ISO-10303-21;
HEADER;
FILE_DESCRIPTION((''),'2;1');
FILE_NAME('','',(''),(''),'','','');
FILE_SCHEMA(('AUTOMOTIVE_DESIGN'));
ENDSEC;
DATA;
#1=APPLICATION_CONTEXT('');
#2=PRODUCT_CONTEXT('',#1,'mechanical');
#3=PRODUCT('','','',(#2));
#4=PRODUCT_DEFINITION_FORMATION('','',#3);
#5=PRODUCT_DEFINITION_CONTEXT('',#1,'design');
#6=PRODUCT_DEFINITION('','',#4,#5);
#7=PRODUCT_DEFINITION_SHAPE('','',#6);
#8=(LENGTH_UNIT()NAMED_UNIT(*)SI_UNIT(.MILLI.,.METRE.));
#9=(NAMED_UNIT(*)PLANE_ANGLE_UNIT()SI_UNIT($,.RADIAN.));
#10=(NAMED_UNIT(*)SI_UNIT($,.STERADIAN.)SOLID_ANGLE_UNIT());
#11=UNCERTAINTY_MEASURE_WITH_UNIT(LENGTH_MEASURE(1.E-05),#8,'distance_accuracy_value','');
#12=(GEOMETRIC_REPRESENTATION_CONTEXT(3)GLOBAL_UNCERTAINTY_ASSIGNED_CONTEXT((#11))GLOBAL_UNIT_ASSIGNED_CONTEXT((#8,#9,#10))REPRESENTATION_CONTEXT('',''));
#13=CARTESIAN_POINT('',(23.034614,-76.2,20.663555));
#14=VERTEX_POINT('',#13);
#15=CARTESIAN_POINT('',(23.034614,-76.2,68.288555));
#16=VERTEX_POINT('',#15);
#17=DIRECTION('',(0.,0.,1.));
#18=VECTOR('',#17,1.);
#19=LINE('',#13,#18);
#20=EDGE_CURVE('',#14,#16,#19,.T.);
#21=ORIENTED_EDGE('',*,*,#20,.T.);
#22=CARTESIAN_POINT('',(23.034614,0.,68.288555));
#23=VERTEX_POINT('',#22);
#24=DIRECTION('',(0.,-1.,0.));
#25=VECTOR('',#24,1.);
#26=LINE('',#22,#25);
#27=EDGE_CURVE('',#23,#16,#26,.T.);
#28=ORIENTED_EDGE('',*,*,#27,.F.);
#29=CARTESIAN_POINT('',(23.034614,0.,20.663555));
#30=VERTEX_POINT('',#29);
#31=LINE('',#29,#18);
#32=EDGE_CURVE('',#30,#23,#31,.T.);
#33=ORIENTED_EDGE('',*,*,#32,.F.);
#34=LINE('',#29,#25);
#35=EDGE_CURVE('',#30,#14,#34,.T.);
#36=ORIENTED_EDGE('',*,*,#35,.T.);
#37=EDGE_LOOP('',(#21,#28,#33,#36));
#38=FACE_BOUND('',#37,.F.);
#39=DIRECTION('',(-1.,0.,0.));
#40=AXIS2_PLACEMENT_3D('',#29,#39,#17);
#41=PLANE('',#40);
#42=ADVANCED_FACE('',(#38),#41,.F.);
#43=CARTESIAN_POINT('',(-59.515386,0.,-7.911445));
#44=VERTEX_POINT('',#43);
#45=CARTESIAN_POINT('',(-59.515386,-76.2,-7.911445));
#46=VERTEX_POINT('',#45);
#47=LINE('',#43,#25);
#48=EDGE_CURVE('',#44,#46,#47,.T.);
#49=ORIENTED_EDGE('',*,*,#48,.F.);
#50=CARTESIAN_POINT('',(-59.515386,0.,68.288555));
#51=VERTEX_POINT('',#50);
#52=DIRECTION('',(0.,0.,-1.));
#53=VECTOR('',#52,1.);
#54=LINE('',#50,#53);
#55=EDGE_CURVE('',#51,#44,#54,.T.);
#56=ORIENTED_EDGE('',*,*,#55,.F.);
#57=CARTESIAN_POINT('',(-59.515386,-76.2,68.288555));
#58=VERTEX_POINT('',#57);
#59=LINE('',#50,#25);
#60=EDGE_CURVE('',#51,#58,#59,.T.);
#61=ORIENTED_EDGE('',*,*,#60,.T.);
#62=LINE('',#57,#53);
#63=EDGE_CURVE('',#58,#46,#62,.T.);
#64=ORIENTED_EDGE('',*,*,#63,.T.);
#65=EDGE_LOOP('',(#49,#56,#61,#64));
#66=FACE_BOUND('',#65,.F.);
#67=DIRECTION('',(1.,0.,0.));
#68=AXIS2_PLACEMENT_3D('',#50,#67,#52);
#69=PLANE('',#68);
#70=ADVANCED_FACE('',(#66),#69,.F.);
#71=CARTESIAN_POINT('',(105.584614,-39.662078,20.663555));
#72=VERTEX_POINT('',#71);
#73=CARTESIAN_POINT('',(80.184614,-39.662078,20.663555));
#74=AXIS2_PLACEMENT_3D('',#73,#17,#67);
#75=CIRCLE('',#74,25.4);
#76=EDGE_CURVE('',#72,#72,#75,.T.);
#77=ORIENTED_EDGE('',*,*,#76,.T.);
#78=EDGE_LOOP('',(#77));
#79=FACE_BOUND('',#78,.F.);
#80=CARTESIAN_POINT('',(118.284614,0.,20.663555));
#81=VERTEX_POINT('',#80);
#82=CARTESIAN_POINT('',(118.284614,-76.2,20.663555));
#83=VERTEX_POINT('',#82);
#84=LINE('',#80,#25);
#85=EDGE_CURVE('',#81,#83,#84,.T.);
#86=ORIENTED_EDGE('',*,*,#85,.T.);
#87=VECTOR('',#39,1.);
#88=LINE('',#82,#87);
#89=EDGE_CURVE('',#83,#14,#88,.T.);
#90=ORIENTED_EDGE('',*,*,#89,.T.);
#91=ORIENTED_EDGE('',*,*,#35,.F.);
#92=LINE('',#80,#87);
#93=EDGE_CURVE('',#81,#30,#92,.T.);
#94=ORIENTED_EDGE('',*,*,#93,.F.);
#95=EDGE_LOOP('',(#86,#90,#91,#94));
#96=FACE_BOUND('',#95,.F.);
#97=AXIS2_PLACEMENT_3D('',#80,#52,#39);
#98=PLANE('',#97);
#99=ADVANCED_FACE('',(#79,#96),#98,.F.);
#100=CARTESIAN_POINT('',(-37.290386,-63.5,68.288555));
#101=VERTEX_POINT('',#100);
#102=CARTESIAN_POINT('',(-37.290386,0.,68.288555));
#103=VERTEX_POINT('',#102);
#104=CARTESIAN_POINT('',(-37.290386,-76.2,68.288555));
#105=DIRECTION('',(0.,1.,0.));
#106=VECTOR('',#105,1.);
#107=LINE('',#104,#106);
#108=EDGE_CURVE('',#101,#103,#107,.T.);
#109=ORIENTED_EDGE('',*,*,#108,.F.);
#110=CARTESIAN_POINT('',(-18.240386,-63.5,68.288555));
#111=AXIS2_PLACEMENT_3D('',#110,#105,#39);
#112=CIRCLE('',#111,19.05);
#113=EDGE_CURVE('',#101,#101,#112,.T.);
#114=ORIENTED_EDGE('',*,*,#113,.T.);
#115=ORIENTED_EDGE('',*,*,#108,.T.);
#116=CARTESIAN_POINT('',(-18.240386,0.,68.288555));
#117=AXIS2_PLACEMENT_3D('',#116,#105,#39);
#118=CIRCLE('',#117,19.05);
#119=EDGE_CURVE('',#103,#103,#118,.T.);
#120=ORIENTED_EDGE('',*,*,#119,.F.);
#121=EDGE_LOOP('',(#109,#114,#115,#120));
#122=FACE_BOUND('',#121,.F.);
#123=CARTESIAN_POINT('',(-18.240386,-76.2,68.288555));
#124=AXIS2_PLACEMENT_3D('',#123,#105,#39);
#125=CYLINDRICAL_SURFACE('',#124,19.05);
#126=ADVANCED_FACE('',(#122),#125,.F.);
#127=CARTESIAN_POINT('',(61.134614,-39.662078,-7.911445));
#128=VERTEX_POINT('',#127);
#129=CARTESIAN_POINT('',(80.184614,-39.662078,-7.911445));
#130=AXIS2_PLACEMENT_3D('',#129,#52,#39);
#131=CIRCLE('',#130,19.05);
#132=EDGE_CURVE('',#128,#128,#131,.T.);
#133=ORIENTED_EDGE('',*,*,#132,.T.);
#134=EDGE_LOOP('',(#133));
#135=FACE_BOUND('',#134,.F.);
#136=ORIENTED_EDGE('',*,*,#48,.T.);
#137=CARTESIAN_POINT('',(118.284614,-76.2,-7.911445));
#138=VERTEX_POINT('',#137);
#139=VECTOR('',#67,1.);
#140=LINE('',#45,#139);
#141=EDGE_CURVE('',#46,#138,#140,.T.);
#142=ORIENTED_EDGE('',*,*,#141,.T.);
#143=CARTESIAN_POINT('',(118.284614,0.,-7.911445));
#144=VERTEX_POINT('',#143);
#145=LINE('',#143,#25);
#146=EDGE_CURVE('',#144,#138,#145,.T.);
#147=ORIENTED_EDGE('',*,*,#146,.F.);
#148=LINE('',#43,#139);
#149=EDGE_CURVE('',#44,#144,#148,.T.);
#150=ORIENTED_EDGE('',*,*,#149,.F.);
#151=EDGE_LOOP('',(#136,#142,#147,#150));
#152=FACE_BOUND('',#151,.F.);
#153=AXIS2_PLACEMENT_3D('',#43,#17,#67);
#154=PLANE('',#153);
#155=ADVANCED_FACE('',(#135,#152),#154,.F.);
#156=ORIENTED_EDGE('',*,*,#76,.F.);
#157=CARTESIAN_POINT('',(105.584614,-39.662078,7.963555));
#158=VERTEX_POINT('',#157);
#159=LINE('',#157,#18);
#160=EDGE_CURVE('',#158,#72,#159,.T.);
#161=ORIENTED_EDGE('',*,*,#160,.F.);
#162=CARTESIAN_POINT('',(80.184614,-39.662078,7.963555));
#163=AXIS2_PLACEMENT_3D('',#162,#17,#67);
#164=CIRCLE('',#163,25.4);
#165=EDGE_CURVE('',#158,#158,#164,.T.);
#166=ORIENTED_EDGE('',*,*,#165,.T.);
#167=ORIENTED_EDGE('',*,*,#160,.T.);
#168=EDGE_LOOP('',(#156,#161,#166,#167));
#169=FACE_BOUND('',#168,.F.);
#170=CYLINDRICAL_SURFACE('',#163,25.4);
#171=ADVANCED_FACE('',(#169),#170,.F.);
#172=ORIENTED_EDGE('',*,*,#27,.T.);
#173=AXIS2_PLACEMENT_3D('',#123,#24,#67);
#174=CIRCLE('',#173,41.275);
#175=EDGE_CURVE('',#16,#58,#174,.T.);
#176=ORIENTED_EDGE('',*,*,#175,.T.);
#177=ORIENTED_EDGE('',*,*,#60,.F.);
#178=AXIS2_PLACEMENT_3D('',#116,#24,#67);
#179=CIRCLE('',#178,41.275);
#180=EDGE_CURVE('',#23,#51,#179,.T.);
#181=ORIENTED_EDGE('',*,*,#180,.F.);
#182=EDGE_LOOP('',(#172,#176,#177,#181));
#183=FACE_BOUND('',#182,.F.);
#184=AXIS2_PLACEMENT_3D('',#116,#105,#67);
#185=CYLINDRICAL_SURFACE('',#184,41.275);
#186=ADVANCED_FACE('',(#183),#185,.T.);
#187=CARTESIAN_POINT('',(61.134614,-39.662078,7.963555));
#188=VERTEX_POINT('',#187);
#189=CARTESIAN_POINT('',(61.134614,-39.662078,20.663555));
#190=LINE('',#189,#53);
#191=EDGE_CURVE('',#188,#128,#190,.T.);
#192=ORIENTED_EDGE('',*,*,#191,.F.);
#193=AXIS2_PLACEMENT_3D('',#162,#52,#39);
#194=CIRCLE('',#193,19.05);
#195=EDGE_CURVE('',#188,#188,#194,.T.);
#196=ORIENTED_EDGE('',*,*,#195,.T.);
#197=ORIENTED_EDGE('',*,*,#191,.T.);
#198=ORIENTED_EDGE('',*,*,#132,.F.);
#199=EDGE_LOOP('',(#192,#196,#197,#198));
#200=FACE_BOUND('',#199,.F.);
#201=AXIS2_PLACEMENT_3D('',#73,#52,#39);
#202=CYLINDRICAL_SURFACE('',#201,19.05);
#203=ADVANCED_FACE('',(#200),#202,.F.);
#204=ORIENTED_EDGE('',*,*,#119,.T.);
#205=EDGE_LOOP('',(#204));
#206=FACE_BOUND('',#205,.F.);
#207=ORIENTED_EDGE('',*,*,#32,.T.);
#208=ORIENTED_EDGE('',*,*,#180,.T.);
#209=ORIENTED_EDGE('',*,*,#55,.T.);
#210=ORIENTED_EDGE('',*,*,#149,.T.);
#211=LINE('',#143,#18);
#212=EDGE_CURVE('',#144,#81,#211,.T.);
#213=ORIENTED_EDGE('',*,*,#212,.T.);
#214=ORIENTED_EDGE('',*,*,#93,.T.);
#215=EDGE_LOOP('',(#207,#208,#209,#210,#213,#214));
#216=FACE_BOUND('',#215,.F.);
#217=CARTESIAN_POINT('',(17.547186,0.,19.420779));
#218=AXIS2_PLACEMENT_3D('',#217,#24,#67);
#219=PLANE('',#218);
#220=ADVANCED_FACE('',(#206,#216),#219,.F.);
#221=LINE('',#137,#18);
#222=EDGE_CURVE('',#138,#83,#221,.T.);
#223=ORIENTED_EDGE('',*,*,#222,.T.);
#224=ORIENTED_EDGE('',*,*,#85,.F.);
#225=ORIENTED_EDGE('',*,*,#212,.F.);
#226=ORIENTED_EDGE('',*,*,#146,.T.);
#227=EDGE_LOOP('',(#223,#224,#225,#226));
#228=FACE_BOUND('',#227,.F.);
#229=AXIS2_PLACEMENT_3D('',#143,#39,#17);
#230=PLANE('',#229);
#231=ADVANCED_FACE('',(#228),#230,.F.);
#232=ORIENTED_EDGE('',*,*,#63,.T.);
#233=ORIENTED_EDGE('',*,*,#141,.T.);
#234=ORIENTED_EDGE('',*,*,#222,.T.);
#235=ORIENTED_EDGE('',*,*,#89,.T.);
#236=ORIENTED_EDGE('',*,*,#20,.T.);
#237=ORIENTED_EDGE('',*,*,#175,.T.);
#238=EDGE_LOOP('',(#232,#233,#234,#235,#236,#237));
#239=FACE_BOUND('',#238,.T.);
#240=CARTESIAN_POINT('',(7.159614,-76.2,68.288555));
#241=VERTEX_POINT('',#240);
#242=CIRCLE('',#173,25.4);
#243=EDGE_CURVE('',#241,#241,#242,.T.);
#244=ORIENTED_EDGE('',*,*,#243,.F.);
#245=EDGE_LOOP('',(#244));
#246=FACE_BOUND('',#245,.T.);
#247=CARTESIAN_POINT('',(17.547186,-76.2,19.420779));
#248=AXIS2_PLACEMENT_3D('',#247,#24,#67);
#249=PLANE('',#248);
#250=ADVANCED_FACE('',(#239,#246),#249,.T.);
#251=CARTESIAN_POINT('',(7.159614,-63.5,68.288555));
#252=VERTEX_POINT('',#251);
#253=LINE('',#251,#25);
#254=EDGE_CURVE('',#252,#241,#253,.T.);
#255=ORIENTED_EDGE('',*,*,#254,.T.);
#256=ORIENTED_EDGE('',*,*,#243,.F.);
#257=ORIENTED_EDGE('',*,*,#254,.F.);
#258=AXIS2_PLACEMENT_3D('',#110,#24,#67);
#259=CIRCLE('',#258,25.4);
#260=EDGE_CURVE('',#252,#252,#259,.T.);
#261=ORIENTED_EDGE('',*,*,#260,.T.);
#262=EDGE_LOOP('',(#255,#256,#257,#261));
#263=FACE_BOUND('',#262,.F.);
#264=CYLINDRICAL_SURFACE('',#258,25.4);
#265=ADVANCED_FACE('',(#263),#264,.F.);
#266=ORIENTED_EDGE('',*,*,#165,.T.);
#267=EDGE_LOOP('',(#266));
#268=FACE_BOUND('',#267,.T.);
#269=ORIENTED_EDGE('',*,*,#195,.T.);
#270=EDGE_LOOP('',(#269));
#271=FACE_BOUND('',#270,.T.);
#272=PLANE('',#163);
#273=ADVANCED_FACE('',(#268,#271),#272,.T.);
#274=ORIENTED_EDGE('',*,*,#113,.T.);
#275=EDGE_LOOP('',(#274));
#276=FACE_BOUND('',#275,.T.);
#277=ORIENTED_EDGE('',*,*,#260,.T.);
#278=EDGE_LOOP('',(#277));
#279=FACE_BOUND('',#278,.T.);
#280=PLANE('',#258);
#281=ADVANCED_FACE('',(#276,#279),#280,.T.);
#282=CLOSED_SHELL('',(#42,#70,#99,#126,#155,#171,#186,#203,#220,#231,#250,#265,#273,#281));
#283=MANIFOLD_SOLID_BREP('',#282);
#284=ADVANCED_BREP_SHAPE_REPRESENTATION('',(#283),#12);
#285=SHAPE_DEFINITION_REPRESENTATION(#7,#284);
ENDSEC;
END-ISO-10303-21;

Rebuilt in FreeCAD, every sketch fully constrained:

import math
import FreeCAD as App
import Part
import Sketcher
Q = App.Units.Quantity

doc = App.newDocument("Part")
body = doc.addObject("PartDesign::Body", "Body")

# Sketch on XZ plane
sketch1 = body.newObject("Sketcher::SketchObject", "Sketch")
sketch1.AttachmentSupport = (doc.getObject("XZ_Plane"), [""])
sketch1.MapMode = "FlatFace"
sketch1.addGeometry(Part.LineSegment(App.Vector(118.284614, 20.663555, 0), App.Vector(23.034614, 20.663555, 0)), False)
sketch1.addGeometry(Part.LineSegment(App.Vector(23.034614, 20.663555, 0), App.Vector(23.034614, 68.288555, 0)), False)
sketch1.addGeometry(Part.ArcOfCircle(Part.Circle(App.Vector(-18.240386, 68.288555, 0), App.Vector(0, 0, 1), 41.275), math.radians(0), math.radians(180)), False)
sketch1.addGeometry(Part.LineSegment(App.Vector(-59.515386, 68.288555, 0), App.Vector(-59.515386, -7.911445, 0)), False)
sketch1.addGeometry(Part.LineSegment(App.Vector(-59.515386, -7.911445, 0), App.Vector(118.284614, -7.911445, 0)), False)
sketch1.addGeometry(Part.LineSegment(App.Vector(118.284614, -7.911445, 0), App.Vector(118.284614, 20.663555, 0)), False)
sketch1.addConstraint(Sketcher.Constraint("Coincident", 0, 2, 1, 1))
sketch1.addConstraint(Sketcher.Constraint("Tangent", 1, 2, 2, 1))
sketch1.addConstraint(Sketcher.Constraint("Tangent", 2, 2, 3, 1))
sketch1.addConstraint(Sketcher.Constraint("Coincident", 3, 2, 4, 1))
sketch1.addConstraint(Sketcher.Constraint("Coincident", 4, 2, 5, 1))
sketch1.addConstraint(Sketcher.Constraint("Coincident", 5, 2, 0, 1))
sketch1.addConstraint(Sketcher.Constraint("Horizontal", 0))
sketch1.addConstraint(Sketcher.Constraint("Vertical", 1))
sketch1.addConstraint(Sketcher.Constraint("Vertical", 3))
sketch1.addConstraint(Sketcher.Constraint("Horizontal", 4))
sketch1.addConstraint(Sketcher.Constraint("Vertical", 5))
sketch1.addConstraint(Sketcher.Constraint("DistanceX", 4, 1, 4, 2, Q("7 in")))
sketch1.addConstraint(Sketcher.Constraint("DistanceY", 3, 2, 3, 1, Q("3 in")))
sketch1.addConstraint(Sketcher.Constraint("Radius", 2, Q("1.625 in")))
sketch1.addConstraint(Sketcher.Constraint("DistanceY", 1, 1, 1, 2, Q("1.875 in")))
sketch1.addConstraint(Sketcher.Constraint("DistanceX", 2, 3, -1, 1, 18.240386))
sketch1.addConstraint(Sketcher.Constraint("DistanceY", -1, 1, 2, 3, 68.288555))
pad1 = body.newObject("PartDesign::Pad", "Pad")
pad1.Profile = sketch1
pad1.Length = Q("3 in")

# Sketch on XZ plane
sketch2 = body.newObject("Sketcher::SketchObject", "Sketch001")
sketch2.AttachmentSupport = (doc.getObject("XZ_Plane"), [""])
sketch2.MapMode = "FlatFace"
sketch2.AttachmentOffset = App.Placement(App.Vector(0, 0, 3 * 25.4), App.Rotation())
sketch2.addGeometry(Part.Circle(App.Vector(-18.240386, 68.288555, 0), App.Vector(0, 0, 1), 19.05), False)
sketch2.addConstraint(Sketcher.Constraint("Diameter", 0, Q("1.5 in")))
sketch2.addConstraint(Sketcher.Constraint("DistanceX", 0, 3, -1, 1, 18.240386))
sketch2.addConstraint(Sketcher.Constraint("DistanceY", -1, 1, 0, 3, 68.288555))
doc.recompute()
hole = body.newObject("PartDesign::Hole", "Hole")
hole.Profile = sketch2
hole.ThreadType = "None"
hole.Diameter = Q("1.5 in")
hole.DepthType = "ThroughAll"
hole.HoleCutType = "Counterbore"
hole.HoleCutDiameter = Q("2 in")
hole.HoleCutDepth = Q("0.5 in")

# Sketch on XY plane
sketch3 = body.newObject("Sketcher::SketchObject", "Sketch002")
sketch3.AttachmentSupport = (doc.getObject("XY_Plane"), [""])
sketch3.MapMode = "FlatFace"
sketch3.AttachmentOffset = App.Placement(App.Vector(0, 0, 20.663555), App.Rotation())
sketch3.addGeometry(Part.Circle(App.Vector(80.184614, -39.662078, 0), App.Vector(0, 0, 1), 19.05), False)
sketch3.addConstraint(Sketcher.Constraint("Diameter", 0, Q("1.5 in")))
sketch3.addConstraint(Sketcher.Constraint("DistanceX", -1, 1, 0, 3, 80.184614))
sketch3.addConstraint(Sketcher.Constraint("DistanceY", 0, 3, -1, 1, 39.662078))
doc.recompute()
hole2 = body.newObject("PartDesign::Hole", "Hole001")
hole2.Profile = sketch3
hole2.ThreadType = "None"
hole2.Diameter = Q("1.5 in")
hole2.DepthType = "ThroughAll"
hole2.HoleCutType = "Counterbore"
hole2.HoleCutDiameter = Q("2 in")
hole2.HoleCutDepth = Q("0.5 in")

doc.recompute()
